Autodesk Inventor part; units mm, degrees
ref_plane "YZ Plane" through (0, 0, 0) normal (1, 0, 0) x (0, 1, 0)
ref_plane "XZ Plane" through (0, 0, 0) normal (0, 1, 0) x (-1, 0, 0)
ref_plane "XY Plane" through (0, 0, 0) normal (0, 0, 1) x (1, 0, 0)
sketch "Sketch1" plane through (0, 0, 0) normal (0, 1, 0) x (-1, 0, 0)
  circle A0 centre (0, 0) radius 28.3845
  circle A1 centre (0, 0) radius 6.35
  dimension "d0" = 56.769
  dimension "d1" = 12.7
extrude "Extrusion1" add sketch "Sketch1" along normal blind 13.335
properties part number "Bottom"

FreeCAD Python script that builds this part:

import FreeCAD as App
import Part
import Sketcher

V = App.Vector
Q = App.Units.Quantity

doc = App.newDocument("Part")
body = doc.addObject("PartDesign::Body", "Body")

# Sketch on XZ plane
sketch1 = body.newObject("Sketcher::SketchObject", "Sketch")
sketch1.AttachmentSupport = (doc.getObject("XZ_Plane"), [""])
sketch1.MapMode = "FlatFace"
sketch1.addGeometry([
    Part.Circle(V(0, 0, 0), V(0, 0, 1), 28),
    Part.Circle(V(0, 0, 0), V(0, 0, 1), 6),
], False)
sketch1.addConstraint([
    Sketcher.Constraint("Coincident", 0, 3, -1, 1),
    Sketcher.Constraint("Coincident", 1, 3, -1, 1),
    Sketcher.Constraint("Diameter", 1, Q("0.5 in")),
    Sketcher.Constraint("Diameter", 0, Q("2.235 in")),
])
pad1 = body.newObject("PartDesign::Pad", "Pad")
pad1.Profile = sketch1
pad1.Length = Q("0.525 in")
pad1.Reversed = True

doc.recompute()
